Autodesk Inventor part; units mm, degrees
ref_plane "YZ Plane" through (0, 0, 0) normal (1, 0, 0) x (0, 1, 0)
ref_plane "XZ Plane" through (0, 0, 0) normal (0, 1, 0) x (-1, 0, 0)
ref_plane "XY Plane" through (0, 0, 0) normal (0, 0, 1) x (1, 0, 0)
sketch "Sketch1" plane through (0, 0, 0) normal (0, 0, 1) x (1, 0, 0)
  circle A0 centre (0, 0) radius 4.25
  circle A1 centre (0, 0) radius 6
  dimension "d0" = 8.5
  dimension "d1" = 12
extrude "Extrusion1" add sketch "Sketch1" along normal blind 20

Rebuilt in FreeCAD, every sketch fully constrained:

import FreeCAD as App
import Part
import Sketcher

V = App.Vector

doc = App.newDocument("Part")
body = doc.addObject("PartDesign::Body", "Body")

sketch1 = body.newObject("Sketcher::SketchObject", "Sketch")
sketch1.AttachmentSupport = (doc.getObject("XY_Plane"), [""])
sketch1.MapMode = "FlatFace"
sketch1.addGeometry(Part.Circle(V(0, 0, 0), V(0, 0, 1), 6), False)
sketch1.addGeometry(Part.Circle(V(0, 0, 0), V(0, 0, 1), 4.2), False)
sketch1.addConstraint(Sketcher.Constraint("Coincident", 0, 3, -1, 1))
sketch1.addConstraint(Sketcher.Constraint("Coincident", 1, 3, -1, 1))
sketch1.addConstraint(Sketcher.Constraint("Diameter", 0, 12.0))
sketch1.addConstraint(Sketcher.Constraint("Diameter", 1, 8.5))
pad1 = body.newObject("PartDesign::Pad", "Pad")
pad1.Profile = sketch1
pad1.Length = 20

doc.recompute()
